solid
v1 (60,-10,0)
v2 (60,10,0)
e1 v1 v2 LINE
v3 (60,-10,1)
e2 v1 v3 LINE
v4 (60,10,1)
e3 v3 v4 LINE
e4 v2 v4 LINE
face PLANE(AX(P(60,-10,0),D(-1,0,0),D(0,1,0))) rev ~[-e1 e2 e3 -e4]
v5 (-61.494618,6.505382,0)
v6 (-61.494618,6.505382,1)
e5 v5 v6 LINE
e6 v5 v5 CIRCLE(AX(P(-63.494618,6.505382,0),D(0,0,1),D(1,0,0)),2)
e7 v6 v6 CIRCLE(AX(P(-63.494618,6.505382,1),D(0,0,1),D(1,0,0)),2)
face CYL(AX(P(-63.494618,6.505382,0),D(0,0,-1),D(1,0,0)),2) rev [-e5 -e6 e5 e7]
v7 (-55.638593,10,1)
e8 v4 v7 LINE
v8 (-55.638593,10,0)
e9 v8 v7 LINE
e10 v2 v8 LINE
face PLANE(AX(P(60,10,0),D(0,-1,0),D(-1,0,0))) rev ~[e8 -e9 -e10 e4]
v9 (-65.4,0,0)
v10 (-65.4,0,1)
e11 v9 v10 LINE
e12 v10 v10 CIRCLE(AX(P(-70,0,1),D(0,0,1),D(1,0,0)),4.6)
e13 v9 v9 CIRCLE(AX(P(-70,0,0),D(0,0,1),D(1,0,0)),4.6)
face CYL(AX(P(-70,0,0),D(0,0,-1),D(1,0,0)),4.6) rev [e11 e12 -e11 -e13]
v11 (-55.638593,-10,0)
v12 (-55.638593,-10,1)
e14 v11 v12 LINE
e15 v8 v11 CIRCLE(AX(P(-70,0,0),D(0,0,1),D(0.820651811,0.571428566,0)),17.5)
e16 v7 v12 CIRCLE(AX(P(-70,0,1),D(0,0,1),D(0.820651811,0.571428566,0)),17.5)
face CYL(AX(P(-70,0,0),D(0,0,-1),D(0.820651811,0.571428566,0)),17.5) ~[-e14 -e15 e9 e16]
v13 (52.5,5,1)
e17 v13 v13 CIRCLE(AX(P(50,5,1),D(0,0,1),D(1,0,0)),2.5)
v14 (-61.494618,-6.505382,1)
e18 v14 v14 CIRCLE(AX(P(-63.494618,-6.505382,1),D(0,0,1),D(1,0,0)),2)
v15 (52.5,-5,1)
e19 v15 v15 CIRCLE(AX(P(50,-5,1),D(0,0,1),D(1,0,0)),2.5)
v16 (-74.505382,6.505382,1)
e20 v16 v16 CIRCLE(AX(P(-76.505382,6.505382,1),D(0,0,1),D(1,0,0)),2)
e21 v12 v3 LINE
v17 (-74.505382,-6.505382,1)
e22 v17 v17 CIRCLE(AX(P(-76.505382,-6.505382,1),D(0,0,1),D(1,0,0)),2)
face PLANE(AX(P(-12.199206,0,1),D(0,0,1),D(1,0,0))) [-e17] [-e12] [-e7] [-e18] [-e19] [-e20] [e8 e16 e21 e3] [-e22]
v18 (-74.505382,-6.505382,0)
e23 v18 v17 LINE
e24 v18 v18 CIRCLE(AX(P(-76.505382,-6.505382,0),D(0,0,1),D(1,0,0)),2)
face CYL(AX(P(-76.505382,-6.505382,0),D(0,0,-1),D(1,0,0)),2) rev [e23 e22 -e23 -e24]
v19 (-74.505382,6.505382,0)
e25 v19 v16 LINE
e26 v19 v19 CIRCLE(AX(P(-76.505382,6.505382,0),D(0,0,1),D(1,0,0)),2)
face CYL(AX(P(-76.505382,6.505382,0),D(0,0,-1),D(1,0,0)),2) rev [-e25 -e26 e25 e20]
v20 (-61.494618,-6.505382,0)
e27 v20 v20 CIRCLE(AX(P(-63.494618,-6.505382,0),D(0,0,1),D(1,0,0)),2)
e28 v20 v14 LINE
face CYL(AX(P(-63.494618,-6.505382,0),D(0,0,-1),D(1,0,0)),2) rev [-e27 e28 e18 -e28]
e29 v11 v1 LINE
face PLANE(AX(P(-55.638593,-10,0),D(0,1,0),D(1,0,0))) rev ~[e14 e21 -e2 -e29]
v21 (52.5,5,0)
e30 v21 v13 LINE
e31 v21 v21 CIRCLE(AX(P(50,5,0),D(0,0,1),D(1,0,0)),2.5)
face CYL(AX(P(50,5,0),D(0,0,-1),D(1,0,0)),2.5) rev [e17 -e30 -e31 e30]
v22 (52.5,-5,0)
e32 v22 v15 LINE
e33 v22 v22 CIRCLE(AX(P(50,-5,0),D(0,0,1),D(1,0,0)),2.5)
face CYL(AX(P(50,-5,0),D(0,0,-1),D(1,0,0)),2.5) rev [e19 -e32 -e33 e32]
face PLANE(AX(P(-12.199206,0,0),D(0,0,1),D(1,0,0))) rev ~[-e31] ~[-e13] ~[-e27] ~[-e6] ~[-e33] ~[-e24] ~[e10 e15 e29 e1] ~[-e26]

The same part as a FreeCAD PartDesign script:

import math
import FreeCAD as App
import Part
import Sketcher
from FreeCAD import Vector
Q = App.Units.Quantity

doc = App.newDocument("Part")
body = doc.addObject("PartDesign::Body", "Body")

# Sketch on XY plane
sketch1 = doc.addObject("Sketcher::SketchObject", "Sketch")
body.addObject(sketch1)
sketch1.AttachmentSupport = (doc.XY_Plane, [""])
sketch1.MapMode = "FlatFace"
sketch1.addGeometry(Part.LineSegment(Vector(-55.6, -10, 0), Vector(60, -10, 0)), False)
sketch1.addGeometry(Part.LineSegment(Vector(60, -10, 0), Vector(60, 10, 0)), False)
sketch1.addGeometry(Part.LineSegment(Vector(60, 10, 0), Vector(-55.6, 10, 0)), False)
sketch1.addGeometry(Part.ArcOfCircle(Part.Circle(Vector(-70, 0, 0), Vector(0, 0, 1), 17.5), math.radians(35), math.radians(325)), False)
sketch1.addGeometry(Part.Circle(Vector(-76.5, -6.5, 0), Vector(0, 0, 1), 2), False)
sketch1.addGeometry(Part.Circle(Vector(-63.5, -6.5, 0), Vector(0, 0, 1), 2), False)
sketch1.addGeometry(Part.Circle(Vector(50, -5, 0), Vector(0, 0, 1), 2.5), False)
sketch1.addGeometry(Part.Circle(Vector(-70, 0, 0), Vector(0, 0, 1), 4.6), False)
sketch1.addGeometry(Part.Circle(Vector(-76.5, 6.5, 0), Vector(0, 0, 1), 2), False)
sketch1.addGeometry(Part.Circle(Vector(-63.5, 6.5, 0), Vector(0, 0, 1), 2), False)
sketch1.addGeometry(Part.Circle(Vector(50, 5, 0), Vector(0, 0, 1), 2.5), False)
sketch1.addConstraint(Sketcher.Constraint("Coincident", 0, 2, 1, 1))
sketch1.addConstraint(Sketcher.Constraint("Coincident", 1, 2, 2, 1))
sketch1.addConstraint(Sketcher.Constraint("Coincident", 2, 2, 3, 1))
sketch1.addConstraint(Sketcher.Constraint("Coincident", 3, 2, 0, 1))
sketch1.addConstraint(Sketcher.Constraint("Horizontal", 0))
sketch1.addConstraint(Sketcher.Constraint("Vertical", 1))
sketch1.addConstraint(Sketcher.Constraint("Horizontal", 2))
sketch1.addConstraint(Sketcher.Constraint("Coincident", 7, 3, 3, 3))
sketch1.addConstraint(Sketcher.Constraint("Equal", 4, 5))
sketch1.addConstraint(Sketcher.Constraint("Equal", 5, 8))
sketch1.addConstraint(Sketcher.Constraint("Equal", 8, 9))
sketch1.addConstraint(Sketcher.Constraint("Equal", 6, 10))
sketch1.addConstraint(Sketcher.Constraint("Symmetric", 4, 3, 8, 3, -1))
sketch1.addConstraint(Sketcher.Constraint("Symmetric", 5, 3, 9, 3, -1))
sketch1.addConstraint(Sketcher.Constraint("Symmetric", 6, 3, 10, 3, -1))
sketch1.addConstraint(Sketcher.Constraint("Symmetric", 2, 2, 3, 2, -1))
sketch1.addConstraint(Sketcher.Constraint("Horizontal", 4, 3, 5, 3))
sketch1.addConstraint(Sketcher.Constraint("Diameter", 4, Q("4 mm")))
sketch1.addConstraint(Sketcher.Constraint("Diameter", 6, Q("5 mm")))
sketch1.addConstraint(Sketcher.Constraint("Diameter", 7, Q("9.2 mm")))
sketch1.addConstraint(Sketcher.Constraint("Radius", 3, Q("17.5 mm")))
sketch1.addConstraint(Sketcher.Constraint("DistanceY", 1, 1, 1, 2, Q("20 mm")))
sketch1.addConstraint(Sketcher.Constraint("DistanceX", 3, 3, -1, 1, Q("70 mm")))
sketch1.addConstraint(Sketcher.Constraint("DistanceX", -1, 1, 6, 3, Q("50 mm")))
sketch1.addConstraint(Sketcher.Constraint("DistanceY", 6, 3, -1, 1, Q("5 mm")))
sketch1.addConstraint(Sketcher.Constraint("DistanceX", -1, 1, 0, 2, Q("60 mm")))
sketch1.addConstraint(Sketcher.Constraint("DistanceX", 4, 3, -1, 1, Q("76.505382 mm")))
sketch1.addConstraint(Sketcher.Constraint("DistanceX", 5, 3, -1, 1, Q("63.494618 mm")))
sketch1.addConstraint(Sketcher.Constraint("DistanceY", 0, 2, 5, 3, Q("3.494618 mm")))
pad1 = doc.addObject("PartDesign::Pad", "Pad")
body.addObject(pad1)
pad1.Profile = sketch1
pad1.Length = 1

doc.recompute()
